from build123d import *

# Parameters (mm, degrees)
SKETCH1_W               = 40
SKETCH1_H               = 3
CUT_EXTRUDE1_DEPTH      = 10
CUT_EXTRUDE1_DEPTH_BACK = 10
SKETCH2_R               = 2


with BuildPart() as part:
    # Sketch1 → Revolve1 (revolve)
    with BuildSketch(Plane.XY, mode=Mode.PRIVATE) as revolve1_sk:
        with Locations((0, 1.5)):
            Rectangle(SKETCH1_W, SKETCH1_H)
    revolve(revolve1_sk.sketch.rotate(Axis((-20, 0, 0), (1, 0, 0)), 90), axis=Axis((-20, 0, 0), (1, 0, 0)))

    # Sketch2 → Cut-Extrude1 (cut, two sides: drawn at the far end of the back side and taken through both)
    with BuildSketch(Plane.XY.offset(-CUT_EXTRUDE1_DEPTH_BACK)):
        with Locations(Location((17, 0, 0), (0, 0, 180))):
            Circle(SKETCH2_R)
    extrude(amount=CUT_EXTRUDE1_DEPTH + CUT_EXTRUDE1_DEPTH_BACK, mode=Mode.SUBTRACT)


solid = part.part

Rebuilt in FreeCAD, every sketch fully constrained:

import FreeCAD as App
import Part
import Sketcher

V = App.Vector


def add_polygon(sketch, points):
    """Adds a closed chain of lines whose ends are joined by coincident constraints."""
    first, n = sketch.GeometryCount, len(points)
    for a, b in zip(points, points[1:] + points[:1]):
        sketch.addGeometry(Part.LineSegment(App.Vector(*a, 0), App.Vector(*b, 0)), False)
    for i in range(n):
        sketch.addConstraint(Sketcher.Constraint("Coincident", first + i, 2, first + (i + 1) % n, 1))

doc = App.newDocument("Part")
body = doc.addObject("PartDesign::Body", "Body")

sketch1 = doc.addObject("Sketcher::SketchObject", "Sketch")
body.addObject(sketch1)
sketch1.AttachmentSupport = (doc.XY_Plane, [""])
sketch1.MapMode = "FlatFace"
add_polygon(sketch1, [(-20, 3), (-20, 0), (20, 0), (20, 3)])
sketch1.addConstraint(Sketcher.Constraint("Vertical", 0))
sketch1.addConstraint(Sketcher.Constraint("Horizontal", 1))
sketch1.addConstraint(Sketcher.Constraint("Vertical", 2))
sketch1.addConstraint(Sketcher.Constraint("Horizontal", 3))
sketch1.addConstraint(Sketcher.Constraint("Symmetric", 0, 2, 1, 2, -1, 1))
sketch1.addConstraint(Sketcher.Constraint("DistanceX", 1, 1, 1, 2, 40.0))
sketch1.addConstraint(Sketcher.Constraint("DistanceY", 0, 2, 0, 1, 3.0))
revolution = doc.addObject("PartDesign::Revolution", "Revolution")
body.addObject(revolution)
revolution.Profile = sketch1
revolution.ReferenceAxis = (sketch1, ["H_Axis"])
revolution.Angle = 360

sketch2 = doc.addObject("Sketcher::SketchObject", "Sketch001")
body.addObject(sketch2)
sketch2.AttachmentSupport = (doc.XY_Plane, [""])
sketch2.MapMode = "FlatFace"
sketch2.addGeometry(Part.Circle(V(17, 0, 0), V(0, 0, 1), 2), False)
sketch2.addConstraint(Sketcher.Constraint("PointOnObject", 0, 3, -1))
sketch2.addConstraint(Sketcher.Constraint("Diameter", 0, 4.0))
sketch2.addConstraint(Sketcher.Constraint("DistanceX", -1, 1, 0, 3, 17.0))
pocket1 = doc.addObject("PartDesign::Pocket", "Pocket")
body.addObject(pocket1)
pocket1.Profile = sketch2
pocket1.Type = "ThroughAll"
pocket1.Midplane = True

doc.recompute()
